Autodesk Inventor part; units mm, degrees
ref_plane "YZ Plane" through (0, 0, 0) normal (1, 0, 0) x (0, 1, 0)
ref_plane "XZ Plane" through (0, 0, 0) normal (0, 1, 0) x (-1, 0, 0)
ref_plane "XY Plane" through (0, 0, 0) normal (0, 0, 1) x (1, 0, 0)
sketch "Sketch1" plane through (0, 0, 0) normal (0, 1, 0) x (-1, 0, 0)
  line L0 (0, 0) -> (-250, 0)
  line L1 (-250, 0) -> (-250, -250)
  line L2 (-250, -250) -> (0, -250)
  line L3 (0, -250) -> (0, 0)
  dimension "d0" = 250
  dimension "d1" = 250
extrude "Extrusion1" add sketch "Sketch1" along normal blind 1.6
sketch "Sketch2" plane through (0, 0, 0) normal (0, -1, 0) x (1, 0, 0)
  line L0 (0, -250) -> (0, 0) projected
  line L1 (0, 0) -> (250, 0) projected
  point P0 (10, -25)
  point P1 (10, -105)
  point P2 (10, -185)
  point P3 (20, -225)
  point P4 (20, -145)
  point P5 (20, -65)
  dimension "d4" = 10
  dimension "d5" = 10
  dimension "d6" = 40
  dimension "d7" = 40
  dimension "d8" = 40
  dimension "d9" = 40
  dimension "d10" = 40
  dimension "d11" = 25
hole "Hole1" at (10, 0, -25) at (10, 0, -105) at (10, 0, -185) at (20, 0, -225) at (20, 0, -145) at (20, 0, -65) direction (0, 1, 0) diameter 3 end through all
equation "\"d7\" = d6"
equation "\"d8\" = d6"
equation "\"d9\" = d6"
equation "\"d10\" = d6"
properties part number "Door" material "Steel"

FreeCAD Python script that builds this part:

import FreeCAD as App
import Part
import Sketcher
from FreeCAD import Vector


def add_polygon(sketch, points):
    """Adds a closed chain of lines whose ends are joined by coincident constraints."""
    first, n = sketch.GeometryCount, len(points)
    for a, b in zip(points, points[1:] + points[:1]):
        sketch.addGeometry(Part.LineSegment(App.Vector(*a, 0), App.Vector(*b, 0)), False)
    for i in range(n):
        sketch.addConstraint(Sketcher.Constraint("Coincident", first + i, 2, first + (i + 1) % n, 1))

doc = App.newDocument("Part")
body = doc.addObject("PartDesign::Body", "Body")

# Sketch on XZ plane
sketch1 = body.newObject("Sketcher::SketchObject", "Sketch")
sketch1.AttachmentSupport = (doc.getObject("XZ_Plane"), [""])
sketch1.MapMode = "FlatFace"
add_polygon(sketch1, [(0, -250), (0, 0), (250, 0), (250, -250)])  # lines 0-3
sketch1.addConstraint(Sketcher.Constraint("Vertical", 0))
sketch1.addConstraint(Sketcher.Constraint("Horizontal", 1))
sketch1.addConstraint(Sketcher.Constraint("Vertical", 2))
sketch1.addConstraint(Sketcher.Constraint("Horizontal", 3))
sketch1.addConstraint(Sketcher.Constraint("Coincident", 0, 2, -1, 1))
sketch1.addConstraint(Sketcher.Constraint("Equal", 3, 0))
sketch1.addConstraint(Sketcher.Constraint("DistanceX", 1, 1, 1, 2, 250.0))
pad1 = body.newObject("PartDesign::Pad", "Pad")
pad1.Profile = sketch1
pad1.Length = 1.6
pad1.Reversed = True

# Sketch on XZ plane
sketch2 = body.newObject("Sketcher::SketchObject", "Sketch001")
sketch2.AttachmentSupport = (doc.getObject("XZ_Plane"), [""])
sketch2.MapMode = "FlatFace"
sketch2.addGeometry(Part.Circle(Vector(10, -25, 0), Vector(0, 0, 1), 1.5), False)
sketch2.addGeometry(Part.Circle(Vector(10, -105, 0), Vector(0, 0, 1), 1.5), False)
sketch2.addGeometry(Part.Circle(Vector(10, -185, 0), Vector(0, 0, 1), 1.5), False)
sketch2.addGeometry(Part.Circle(Vector(20, -225, 0), Vector(0, 0, 1), 1.5), False)
sketch2.addGeometry(Part.Circle(Vector(20, -145, 0), Vector(0, 0, 1), 1.5), False)
sketch2.addGeometry(Part.Circle(Vector(20, -65, 0), Vector(0, 0, 1), 1.5), False)
sketch2.addConstraint(Sketcher.Constraint("Equal", 0, 1))
sketch2.addConstraint(Sketcher.Constraint("Equal", 1, 2))
sketch2.addConstraint(Sketcher.Constraint("Equal", 2, 3))
sketch2.addConstraint(Sketcher.Constraint("Equal", 3, 4))
sketch2.addConstraint(Sketcher.Constraint("Equal", 4, 5))
sketch2.addConstraint(Sketcher.Constraint("Vertical", 0, 3, 1, 3))
sketch2.addConstraint(Sketcher.Constraint("Vertical", 1, 3, 2, 3))
sketch2.addConstraint(Sketcher.Constraint("Vertical", 3, 3, 4, 3))
sketch2.addConstraint(Sketcher.Constraint("Vertical", 4, 3, 5, 3))
sketch2.addConstraint(Sketcher.Constraint("Diameter", 0, 3.0))
sketch2.addConstraint(Sketcher.Constraint("DistanceX", -1, 1, 0, 3, 10.0))
sketch2.addConstraint(Sketcher.Constraint("DistanceY", 0, 3, -1, 1, 25.0))
sketch2.addConstraint(Sketcher.Constraint("DistanceY", 1, 3, -1, 1, 105.0))
sketch2.addConstraint(Sketcher.Constraint("DistanceY", 2, 3, -1, 1, 185.0))
sketch2.addConstraint(Sketcher.Constraint("DistanceX", -1, 1, 3, 3, 20.0))
sketch2.addConstraint(Sketcher.Constraint("DistanceY", 3, 3, -1, 1, 225.0))
sketch2.addConstraint(Sketcher.Constraint("DistanceY", 4, 3, -1, 1, 145.0))
sketch2.addConstraint(Sketcher.Constraint("DistanceY", 5, 3, -1, 1, 65.0))
doc.recompute()
hole = body.newObject("PartDesign::Hole", "Hole")
hole.Profile = sketch2
hole.ThreadType = "None"
hole.Diameter = 3
hole.DepthType = "ThroughAll"

doc.recompute()
